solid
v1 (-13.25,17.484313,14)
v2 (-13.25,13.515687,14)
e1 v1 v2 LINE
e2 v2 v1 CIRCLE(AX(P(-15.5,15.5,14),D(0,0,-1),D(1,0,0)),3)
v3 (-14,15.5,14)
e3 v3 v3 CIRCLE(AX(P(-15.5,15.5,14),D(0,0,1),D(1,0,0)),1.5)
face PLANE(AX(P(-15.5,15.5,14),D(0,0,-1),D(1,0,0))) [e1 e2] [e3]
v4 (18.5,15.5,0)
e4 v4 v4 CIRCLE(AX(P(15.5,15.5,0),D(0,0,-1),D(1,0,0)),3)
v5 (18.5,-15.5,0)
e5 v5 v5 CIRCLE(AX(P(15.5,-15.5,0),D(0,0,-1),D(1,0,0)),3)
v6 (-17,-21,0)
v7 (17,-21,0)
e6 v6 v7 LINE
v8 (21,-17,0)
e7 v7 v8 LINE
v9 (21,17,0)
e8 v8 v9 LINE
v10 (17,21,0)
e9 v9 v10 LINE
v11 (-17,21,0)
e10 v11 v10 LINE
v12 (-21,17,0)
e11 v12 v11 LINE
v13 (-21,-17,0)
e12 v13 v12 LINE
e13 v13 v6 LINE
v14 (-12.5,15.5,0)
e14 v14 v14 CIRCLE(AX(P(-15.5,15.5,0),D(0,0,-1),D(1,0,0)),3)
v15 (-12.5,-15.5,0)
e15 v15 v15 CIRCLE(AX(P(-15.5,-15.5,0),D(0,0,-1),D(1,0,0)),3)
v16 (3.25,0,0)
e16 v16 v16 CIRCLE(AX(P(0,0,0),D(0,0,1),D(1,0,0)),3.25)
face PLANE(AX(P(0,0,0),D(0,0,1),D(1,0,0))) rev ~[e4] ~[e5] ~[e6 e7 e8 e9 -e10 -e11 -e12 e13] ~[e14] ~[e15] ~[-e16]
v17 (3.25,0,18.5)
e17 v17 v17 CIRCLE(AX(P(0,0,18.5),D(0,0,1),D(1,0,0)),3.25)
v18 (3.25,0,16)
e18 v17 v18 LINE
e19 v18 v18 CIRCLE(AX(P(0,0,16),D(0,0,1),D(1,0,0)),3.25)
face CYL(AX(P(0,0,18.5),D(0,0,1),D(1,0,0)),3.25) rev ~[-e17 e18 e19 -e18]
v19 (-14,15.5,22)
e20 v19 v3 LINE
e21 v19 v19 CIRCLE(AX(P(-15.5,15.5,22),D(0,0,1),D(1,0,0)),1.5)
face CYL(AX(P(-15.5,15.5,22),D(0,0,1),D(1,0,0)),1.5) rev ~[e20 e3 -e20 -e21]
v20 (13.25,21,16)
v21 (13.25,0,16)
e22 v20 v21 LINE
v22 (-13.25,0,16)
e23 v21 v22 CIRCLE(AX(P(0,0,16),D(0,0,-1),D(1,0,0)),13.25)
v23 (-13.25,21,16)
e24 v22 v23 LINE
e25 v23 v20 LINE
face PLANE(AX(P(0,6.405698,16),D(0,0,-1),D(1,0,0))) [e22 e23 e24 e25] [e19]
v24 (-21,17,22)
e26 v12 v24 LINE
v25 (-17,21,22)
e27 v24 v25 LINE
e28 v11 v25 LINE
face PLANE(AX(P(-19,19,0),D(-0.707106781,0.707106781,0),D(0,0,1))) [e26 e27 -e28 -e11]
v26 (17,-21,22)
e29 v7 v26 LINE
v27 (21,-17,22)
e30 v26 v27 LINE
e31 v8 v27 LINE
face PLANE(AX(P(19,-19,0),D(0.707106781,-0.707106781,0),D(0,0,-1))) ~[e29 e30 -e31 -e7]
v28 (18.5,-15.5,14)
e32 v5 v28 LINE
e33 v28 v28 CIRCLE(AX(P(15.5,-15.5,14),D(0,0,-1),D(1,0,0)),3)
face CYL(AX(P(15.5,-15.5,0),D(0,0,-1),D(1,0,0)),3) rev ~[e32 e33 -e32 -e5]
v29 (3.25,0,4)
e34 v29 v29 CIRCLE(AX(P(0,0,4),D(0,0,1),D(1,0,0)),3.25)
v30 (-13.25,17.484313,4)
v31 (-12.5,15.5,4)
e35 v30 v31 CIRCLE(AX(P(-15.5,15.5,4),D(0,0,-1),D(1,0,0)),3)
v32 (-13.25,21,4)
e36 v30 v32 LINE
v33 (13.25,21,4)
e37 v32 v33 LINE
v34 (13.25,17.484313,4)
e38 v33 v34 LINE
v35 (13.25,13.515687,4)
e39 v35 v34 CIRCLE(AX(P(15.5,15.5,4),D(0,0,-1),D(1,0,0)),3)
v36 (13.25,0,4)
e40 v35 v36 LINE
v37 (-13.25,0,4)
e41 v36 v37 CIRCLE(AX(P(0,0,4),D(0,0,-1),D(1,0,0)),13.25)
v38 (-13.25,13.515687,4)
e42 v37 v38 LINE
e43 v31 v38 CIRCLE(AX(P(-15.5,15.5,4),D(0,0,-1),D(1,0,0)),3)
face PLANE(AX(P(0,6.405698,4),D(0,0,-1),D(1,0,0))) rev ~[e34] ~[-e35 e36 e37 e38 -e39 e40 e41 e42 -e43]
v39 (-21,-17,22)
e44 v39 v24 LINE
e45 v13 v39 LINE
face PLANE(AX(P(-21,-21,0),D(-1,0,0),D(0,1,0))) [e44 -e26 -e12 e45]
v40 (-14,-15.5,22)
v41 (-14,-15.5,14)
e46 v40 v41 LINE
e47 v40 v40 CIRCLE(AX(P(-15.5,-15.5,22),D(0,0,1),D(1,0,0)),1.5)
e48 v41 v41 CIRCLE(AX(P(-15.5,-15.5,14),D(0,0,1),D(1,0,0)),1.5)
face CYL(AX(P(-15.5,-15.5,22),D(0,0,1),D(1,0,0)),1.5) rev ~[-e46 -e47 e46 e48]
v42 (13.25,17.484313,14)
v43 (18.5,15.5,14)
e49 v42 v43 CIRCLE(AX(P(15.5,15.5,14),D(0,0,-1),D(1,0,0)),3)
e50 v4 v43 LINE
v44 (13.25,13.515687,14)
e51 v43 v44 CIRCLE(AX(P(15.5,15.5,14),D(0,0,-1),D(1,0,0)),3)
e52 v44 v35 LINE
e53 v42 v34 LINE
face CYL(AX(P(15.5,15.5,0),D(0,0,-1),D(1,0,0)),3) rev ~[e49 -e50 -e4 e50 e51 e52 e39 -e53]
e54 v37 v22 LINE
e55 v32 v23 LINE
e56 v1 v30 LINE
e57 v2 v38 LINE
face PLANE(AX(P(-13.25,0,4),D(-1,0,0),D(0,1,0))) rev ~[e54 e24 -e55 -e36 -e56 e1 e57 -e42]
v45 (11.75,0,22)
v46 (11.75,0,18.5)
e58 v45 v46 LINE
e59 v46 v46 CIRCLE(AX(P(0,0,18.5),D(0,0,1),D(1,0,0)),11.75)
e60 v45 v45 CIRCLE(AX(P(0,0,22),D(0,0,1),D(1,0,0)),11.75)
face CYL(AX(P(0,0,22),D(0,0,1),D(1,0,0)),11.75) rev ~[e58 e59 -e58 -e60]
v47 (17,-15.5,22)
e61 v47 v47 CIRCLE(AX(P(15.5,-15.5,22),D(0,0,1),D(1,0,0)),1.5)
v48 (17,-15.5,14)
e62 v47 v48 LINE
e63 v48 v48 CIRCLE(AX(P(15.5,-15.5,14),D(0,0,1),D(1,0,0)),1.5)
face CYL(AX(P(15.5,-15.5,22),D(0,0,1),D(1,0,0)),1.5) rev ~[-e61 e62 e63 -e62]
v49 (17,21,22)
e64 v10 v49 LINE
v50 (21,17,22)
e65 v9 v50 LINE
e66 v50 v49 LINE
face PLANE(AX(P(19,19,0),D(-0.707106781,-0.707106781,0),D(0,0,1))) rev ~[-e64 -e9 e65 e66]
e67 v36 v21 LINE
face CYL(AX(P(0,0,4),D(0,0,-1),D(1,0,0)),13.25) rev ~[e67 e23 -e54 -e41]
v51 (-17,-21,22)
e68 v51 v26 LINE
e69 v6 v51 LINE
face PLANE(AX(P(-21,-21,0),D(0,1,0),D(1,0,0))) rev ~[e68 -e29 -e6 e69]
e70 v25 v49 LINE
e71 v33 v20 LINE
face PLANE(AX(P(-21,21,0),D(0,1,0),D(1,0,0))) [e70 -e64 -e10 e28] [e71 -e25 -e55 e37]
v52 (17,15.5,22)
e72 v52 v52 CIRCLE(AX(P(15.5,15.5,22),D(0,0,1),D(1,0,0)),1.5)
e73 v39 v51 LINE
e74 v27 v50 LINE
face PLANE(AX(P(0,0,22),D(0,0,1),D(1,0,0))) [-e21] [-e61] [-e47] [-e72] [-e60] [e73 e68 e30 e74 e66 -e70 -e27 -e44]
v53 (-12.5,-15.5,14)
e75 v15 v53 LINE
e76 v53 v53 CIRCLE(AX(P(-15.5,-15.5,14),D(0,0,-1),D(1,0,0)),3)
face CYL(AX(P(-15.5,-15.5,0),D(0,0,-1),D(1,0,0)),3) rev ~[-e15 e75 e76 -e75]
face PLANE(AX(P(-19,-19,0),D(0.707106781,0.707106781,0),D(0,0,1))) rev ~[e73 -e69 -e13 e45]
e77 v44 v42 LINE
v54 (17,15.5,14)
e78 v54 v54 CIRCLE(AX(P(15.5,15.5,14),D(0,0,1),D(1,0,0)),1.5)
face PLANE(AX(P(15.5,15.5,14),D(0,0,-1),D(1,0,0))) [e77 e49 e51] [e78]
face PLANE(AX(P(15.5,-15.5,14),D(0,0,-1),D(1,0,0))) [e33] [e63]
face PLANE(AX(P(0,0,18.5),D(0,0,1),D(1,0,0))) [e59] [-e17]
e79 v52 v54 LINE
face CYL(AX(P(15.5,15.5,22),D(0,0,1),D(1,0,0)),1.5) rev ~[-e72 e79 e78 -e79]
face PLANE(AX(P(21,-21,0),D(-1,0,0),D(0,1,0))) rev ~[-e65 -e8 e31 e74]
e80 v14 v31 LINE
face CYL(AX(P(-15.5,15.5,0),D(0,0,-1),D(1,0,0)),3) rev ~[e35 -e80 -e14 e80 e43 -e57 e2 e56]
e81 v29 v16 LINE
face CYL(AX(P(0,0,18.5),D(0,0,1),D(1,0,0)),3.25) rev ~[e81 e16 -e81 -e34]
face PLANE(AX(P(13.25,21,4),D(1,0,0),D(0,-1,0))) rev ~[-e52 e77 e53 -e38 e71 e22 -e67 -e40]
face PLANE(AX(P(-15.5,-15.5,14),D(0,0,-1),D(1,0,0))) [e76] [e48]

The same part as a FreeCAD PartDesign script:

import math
import FreeCAD as App
import Part
import Sketcher
Q = App.Units.Quantity


def edges_at(feature, points):
    """Names of the edges that pass closest to the given points."""
    edges = feature.Shape.Edges
    near = lambda p: min(range(len(edges)), key=lambda i: edges[i].distToShape(Part.Vertex(*p))[0])
    return sorted({f"Edge{near(p) + 1}" for p in points})

doc = App.newDocument("Part")
body = doc.addObject("PartDesign::Body", "Body")

sketch1 = body.newObject("Sketcher::SketchObject", "Sketch")
sketch1.AttachmentSupport = (doc.getObject("XY_Plane"), [""])
sketch1.MapMode = "FlatFace"
sketch1.addGeometry([
    Part.LineSegment(App.Vector(-21, 21, 0), App.Vector(-21, -21, 0)),
    Part.LineSegment(App.Vector(-21, -21, 0), App.Vector(21, -21, 0)),
    Part.LineSegment(App.Vector(21, -21, 0), App.Vector(21, 21, 0)),
    Part.LineSegment(App.Vector(21, 21, 0), App.Vector(-21, 21, 0)),
], False)
sketch1.addConstraint([
    Sketcher.Constraint("Coincident", 0, 2, 1, 1),
    Sketcher.Constraint("Coincident", 1, 2, 2, 1),
    Sketcher.Constraint("Coincident", 2, 2, 3, 1),
    Sketcher.Constraint("Coincident", 3, 2, 0, 1),
    Sketcher.Constraint("Vertical", 0),
    Sketcher.Constraint("Horizontal", 1),
    Sketcher.Constraint("Vertical", 2),
    Sketcher.Constraint("Horizontal", 3),
    Sketcher.Constraint("Symmetric", 0, 2, 2, 2, -1, 1),
    Sketcher.Constraint("Equal", 3, 0),
    Sketcher.Constraint("DistanceX", 1, 1, 1, 2, Q("42 mm")),
])
pad1 = body.newObject("PartDesign::Pad", "Pad")
pad1.Profile = sketch1
pad1.Length = 22
doc.recompute()

chamfer = body.newObject("PartDesign::Chamfer", "Chamfer")
chamfer.Base = (pad1, edges_at(pad1, [
    (-21, -21, 11),
    (21, -21, 11),
    (-21, 21, 11),
    (21, 21, 11),
]))
chamfer.Size = 4

sketch2 = body.newObject("Sketcher::SketchObject", "Sketch001")
sketch2.AttachmentSupport = (doc.getObject("XY_Plane"), [""])
sketch2.MapMode = "FlatFace"
sketch2.AttachmentOffset = App.Placement(App.Vector(0, 0, 22), App.Rotation())
sketch2.addGeometry(Part.Circle(App.Vector(0, 0, 0), App.Vector(0, 0, 1), 12), False)
sketch2.addConstraint([
    Sketcher.Constraint("Coincident", 0, 3, -1, 1),
    Sketcher.Constraint("Diameter", 0, Q("23.5 mm")),
])
pocket1 = body.newObject("PartDesign::Pocket", "Pocket")
pocket1.Profile = sketch2
pocket1.Length = 3.5

sketch3 = body.newObject("Sketcher::SketchObject", "Sketch002")
sketch3.AttachmentSupport = (doc.getObject("XY_Plane"), [""])
sketch3.MapMode = "FlatFace"
sketch3.AttachmentOffset = App.Placement(App.Vector(0, 0, 18.5), App.Rotation())
sketch3.addGeometry(Part.Circle(App.Vector(0, 0, 0), App.Vector(0, 0, 1), 3.2), False)
sketch3.addConstraint([
    Sketcher.Constraint("Coincident", 0, 3, -1, 1),
    Sketcher.Constraint("Diameter", 0, Q("6.5 mm")),
])
pocket2 = body.newObject("PartDesign::Pocket", "Pocket001")
pocket2.Profile = sketch3
pocket2.Type = "ThroughAll"

sketch4 = body.newObject("Sketcher::SketchObject", "Sketch003")
sketch4.AttachmentSupport = (doc.getObject("XY_Plane"), [""])
sketch4.MapMode = "FlatFace"
sketch4.AttachmentOffset = App.Placement(App.Vector(0, 0, 4), App.Rotation())
sketch4.addGeometry([
    Part.LineSegment(App.Vector(-13, 0, 0), App.Vector(-13, 21, 0)),
    Part.LineSegment(App.Vector(-13, 21, 0), App.Vector(13, 21, 0)),
    Part.LineSegment(App.Vector(13, 21, 0), App.Vector(13, 0, 0)),
    Part.ArcOfCircle(Part.Circle(App.Vector(0, 0, 0), App.Vector(0, 0, 1), 13), math.radians(180), math.radians(360)),
], False)
sketch4.addConstraint([
    Sketcher.Constraint("Coincident", 0, 2, 1, 1),
    Sketcher.Constraint("Coincident", 1, 2, 2, 1),
    Sketcher.Constraint("Tangent", 2, 2, 3, 2),
    Sketcher.Constraint("Tangent", 3, 1, 0, 1),
    Sketcher.Constraint("Vertical", 0),
    Sketcher.Constraint("Horizontal", 1),
    Sketcher.Constraint("Vertical", 2),
    Sketcher.Constraint("Coincident", 3, 3, -1, 1),
    Sketcher.Constraint("DistanceY", 0, 1, 0, 2, Q("21 mm")),
    Sketcher.Constraint("Radius", 3, Q("13.25 mm")),
])
pocket3 = body.newObject("PartDesign::Pocket", "Pocket002")
pocket3.Profile = sketch4
pocket3.Length = 12
pocket3.Reversed = True

sketch5 = body.newObject("Sketcher::SketchObject", "Sketch004")
sketch5.AttachmentSupport = (doc.getObject("XY_Plane"), [""])
sketch5.MapMode = "FlatFace"
sketch5.AttachmentOffset = App.Placement(App.Vector(0, 0, 22), App.Rotation())
sketch5.addGeometry([
    Part.Circle(App.Vector(-15.5, 15.5, 0), App.Vector(0, 0, 1), 1.5),
    Part.Circle(App.Vector(15.5, 15.5, 0), App.Vector(0, 0, 1), 1.5),
    Part.Circle(App.Vector(-15.5, -15.5, 0), App.Vector(0, 0, 1), 1.5),
    Part.Circle(App.Vector(15.5, -15.5, 0), App.Vector(0, 0, 1), 1.5),
], False)
sketch5.addConstraint([
    Sketcher.Constraint("Equal", 0, 1),
    Sketcher.Constraint("Equal", 1, 2),
    Sketcher.Constraint("Equal", 2, 3),
    Sketcher.Constraint("Symmetric", 1, 3, 2, 3, -1, 1),
    Sketcher.Constraint("Symmetric", 0, 3, 3, 3, -1, 1),
    Sketcher.Constraint("Symmetric", 0, 3, 1, 3, -2),
    Sketcher.Constraint("Diameter", 0, Q("3 mm")),
    Sketcher.Constraint("DistanceX", 0, 3, 1, 3, Q("31 mm")),
    Sketcher.Constraint("DistanceY", 2, 3, 0, 3, Q("31 mm")),
])
pocket4 = body.newObject("PartDesign::Pocket", "Pocket003")
pocket4.Profile = sketch5
pocket4.Type = "ThroughAll"

sketch6 = body.newObject("Sketcher::SketchObject", "Sketch005")
sketch6.AttachmentSupport = (doc.getObject("XY_Plane"), [""])
sketch6.MapMode = "FlatFace"
sketch6.addGeometry([
    Part.Circle(App.Vector(-15.5, -15.5, 0), App.Vector(0, 0, 1), 3),
    Part.Circle(App.Vector(15.5, -15.5, 0), App.Vector(0, 0, 1), 3),
    Part.Circle(App.Vector(-15.5, 15.5, 0), App.Vector(0, 0, 1), 3),
    Part.Circle(App.Vector(15.5, 15.5, 0), App.Vector(0, 0, 1), 3),
], False)
sketch6.addConstraint([
    Sketcher.Constraint("Equal", 0, 1),
    Sketcher.Constraint("Equal", 1, 2),
    Sketcher.Constraint("Equal", 2, 3),
    Sketcher.Constraint("Symmetric", 1, 3, 2, 3, -1, 1),
    Sketcher.Constraint("Symmetric", 0, 3, 3, 3, -1, 1),
    Sketcher.Constraint("Symmetric", 0, 3, 1, 3, -2),
    Sketcher.Constraint("Diameter", 0, Q("6 mm")),
    Sketcher.Constraint("DistanceX", 0, 3, 1, 3, Q("31 mm")),
    Sketcher.Constraint("DistanceY", 0, 3, 2, 3, Q("31 mm")),
])
pocket5 = body.newObject("PartDesign::Pocket", "Pocket004")
pocket5.Profile = sketch6
pocket5.Length = 14
pocket5.Reversed = True

doc.recompute()
